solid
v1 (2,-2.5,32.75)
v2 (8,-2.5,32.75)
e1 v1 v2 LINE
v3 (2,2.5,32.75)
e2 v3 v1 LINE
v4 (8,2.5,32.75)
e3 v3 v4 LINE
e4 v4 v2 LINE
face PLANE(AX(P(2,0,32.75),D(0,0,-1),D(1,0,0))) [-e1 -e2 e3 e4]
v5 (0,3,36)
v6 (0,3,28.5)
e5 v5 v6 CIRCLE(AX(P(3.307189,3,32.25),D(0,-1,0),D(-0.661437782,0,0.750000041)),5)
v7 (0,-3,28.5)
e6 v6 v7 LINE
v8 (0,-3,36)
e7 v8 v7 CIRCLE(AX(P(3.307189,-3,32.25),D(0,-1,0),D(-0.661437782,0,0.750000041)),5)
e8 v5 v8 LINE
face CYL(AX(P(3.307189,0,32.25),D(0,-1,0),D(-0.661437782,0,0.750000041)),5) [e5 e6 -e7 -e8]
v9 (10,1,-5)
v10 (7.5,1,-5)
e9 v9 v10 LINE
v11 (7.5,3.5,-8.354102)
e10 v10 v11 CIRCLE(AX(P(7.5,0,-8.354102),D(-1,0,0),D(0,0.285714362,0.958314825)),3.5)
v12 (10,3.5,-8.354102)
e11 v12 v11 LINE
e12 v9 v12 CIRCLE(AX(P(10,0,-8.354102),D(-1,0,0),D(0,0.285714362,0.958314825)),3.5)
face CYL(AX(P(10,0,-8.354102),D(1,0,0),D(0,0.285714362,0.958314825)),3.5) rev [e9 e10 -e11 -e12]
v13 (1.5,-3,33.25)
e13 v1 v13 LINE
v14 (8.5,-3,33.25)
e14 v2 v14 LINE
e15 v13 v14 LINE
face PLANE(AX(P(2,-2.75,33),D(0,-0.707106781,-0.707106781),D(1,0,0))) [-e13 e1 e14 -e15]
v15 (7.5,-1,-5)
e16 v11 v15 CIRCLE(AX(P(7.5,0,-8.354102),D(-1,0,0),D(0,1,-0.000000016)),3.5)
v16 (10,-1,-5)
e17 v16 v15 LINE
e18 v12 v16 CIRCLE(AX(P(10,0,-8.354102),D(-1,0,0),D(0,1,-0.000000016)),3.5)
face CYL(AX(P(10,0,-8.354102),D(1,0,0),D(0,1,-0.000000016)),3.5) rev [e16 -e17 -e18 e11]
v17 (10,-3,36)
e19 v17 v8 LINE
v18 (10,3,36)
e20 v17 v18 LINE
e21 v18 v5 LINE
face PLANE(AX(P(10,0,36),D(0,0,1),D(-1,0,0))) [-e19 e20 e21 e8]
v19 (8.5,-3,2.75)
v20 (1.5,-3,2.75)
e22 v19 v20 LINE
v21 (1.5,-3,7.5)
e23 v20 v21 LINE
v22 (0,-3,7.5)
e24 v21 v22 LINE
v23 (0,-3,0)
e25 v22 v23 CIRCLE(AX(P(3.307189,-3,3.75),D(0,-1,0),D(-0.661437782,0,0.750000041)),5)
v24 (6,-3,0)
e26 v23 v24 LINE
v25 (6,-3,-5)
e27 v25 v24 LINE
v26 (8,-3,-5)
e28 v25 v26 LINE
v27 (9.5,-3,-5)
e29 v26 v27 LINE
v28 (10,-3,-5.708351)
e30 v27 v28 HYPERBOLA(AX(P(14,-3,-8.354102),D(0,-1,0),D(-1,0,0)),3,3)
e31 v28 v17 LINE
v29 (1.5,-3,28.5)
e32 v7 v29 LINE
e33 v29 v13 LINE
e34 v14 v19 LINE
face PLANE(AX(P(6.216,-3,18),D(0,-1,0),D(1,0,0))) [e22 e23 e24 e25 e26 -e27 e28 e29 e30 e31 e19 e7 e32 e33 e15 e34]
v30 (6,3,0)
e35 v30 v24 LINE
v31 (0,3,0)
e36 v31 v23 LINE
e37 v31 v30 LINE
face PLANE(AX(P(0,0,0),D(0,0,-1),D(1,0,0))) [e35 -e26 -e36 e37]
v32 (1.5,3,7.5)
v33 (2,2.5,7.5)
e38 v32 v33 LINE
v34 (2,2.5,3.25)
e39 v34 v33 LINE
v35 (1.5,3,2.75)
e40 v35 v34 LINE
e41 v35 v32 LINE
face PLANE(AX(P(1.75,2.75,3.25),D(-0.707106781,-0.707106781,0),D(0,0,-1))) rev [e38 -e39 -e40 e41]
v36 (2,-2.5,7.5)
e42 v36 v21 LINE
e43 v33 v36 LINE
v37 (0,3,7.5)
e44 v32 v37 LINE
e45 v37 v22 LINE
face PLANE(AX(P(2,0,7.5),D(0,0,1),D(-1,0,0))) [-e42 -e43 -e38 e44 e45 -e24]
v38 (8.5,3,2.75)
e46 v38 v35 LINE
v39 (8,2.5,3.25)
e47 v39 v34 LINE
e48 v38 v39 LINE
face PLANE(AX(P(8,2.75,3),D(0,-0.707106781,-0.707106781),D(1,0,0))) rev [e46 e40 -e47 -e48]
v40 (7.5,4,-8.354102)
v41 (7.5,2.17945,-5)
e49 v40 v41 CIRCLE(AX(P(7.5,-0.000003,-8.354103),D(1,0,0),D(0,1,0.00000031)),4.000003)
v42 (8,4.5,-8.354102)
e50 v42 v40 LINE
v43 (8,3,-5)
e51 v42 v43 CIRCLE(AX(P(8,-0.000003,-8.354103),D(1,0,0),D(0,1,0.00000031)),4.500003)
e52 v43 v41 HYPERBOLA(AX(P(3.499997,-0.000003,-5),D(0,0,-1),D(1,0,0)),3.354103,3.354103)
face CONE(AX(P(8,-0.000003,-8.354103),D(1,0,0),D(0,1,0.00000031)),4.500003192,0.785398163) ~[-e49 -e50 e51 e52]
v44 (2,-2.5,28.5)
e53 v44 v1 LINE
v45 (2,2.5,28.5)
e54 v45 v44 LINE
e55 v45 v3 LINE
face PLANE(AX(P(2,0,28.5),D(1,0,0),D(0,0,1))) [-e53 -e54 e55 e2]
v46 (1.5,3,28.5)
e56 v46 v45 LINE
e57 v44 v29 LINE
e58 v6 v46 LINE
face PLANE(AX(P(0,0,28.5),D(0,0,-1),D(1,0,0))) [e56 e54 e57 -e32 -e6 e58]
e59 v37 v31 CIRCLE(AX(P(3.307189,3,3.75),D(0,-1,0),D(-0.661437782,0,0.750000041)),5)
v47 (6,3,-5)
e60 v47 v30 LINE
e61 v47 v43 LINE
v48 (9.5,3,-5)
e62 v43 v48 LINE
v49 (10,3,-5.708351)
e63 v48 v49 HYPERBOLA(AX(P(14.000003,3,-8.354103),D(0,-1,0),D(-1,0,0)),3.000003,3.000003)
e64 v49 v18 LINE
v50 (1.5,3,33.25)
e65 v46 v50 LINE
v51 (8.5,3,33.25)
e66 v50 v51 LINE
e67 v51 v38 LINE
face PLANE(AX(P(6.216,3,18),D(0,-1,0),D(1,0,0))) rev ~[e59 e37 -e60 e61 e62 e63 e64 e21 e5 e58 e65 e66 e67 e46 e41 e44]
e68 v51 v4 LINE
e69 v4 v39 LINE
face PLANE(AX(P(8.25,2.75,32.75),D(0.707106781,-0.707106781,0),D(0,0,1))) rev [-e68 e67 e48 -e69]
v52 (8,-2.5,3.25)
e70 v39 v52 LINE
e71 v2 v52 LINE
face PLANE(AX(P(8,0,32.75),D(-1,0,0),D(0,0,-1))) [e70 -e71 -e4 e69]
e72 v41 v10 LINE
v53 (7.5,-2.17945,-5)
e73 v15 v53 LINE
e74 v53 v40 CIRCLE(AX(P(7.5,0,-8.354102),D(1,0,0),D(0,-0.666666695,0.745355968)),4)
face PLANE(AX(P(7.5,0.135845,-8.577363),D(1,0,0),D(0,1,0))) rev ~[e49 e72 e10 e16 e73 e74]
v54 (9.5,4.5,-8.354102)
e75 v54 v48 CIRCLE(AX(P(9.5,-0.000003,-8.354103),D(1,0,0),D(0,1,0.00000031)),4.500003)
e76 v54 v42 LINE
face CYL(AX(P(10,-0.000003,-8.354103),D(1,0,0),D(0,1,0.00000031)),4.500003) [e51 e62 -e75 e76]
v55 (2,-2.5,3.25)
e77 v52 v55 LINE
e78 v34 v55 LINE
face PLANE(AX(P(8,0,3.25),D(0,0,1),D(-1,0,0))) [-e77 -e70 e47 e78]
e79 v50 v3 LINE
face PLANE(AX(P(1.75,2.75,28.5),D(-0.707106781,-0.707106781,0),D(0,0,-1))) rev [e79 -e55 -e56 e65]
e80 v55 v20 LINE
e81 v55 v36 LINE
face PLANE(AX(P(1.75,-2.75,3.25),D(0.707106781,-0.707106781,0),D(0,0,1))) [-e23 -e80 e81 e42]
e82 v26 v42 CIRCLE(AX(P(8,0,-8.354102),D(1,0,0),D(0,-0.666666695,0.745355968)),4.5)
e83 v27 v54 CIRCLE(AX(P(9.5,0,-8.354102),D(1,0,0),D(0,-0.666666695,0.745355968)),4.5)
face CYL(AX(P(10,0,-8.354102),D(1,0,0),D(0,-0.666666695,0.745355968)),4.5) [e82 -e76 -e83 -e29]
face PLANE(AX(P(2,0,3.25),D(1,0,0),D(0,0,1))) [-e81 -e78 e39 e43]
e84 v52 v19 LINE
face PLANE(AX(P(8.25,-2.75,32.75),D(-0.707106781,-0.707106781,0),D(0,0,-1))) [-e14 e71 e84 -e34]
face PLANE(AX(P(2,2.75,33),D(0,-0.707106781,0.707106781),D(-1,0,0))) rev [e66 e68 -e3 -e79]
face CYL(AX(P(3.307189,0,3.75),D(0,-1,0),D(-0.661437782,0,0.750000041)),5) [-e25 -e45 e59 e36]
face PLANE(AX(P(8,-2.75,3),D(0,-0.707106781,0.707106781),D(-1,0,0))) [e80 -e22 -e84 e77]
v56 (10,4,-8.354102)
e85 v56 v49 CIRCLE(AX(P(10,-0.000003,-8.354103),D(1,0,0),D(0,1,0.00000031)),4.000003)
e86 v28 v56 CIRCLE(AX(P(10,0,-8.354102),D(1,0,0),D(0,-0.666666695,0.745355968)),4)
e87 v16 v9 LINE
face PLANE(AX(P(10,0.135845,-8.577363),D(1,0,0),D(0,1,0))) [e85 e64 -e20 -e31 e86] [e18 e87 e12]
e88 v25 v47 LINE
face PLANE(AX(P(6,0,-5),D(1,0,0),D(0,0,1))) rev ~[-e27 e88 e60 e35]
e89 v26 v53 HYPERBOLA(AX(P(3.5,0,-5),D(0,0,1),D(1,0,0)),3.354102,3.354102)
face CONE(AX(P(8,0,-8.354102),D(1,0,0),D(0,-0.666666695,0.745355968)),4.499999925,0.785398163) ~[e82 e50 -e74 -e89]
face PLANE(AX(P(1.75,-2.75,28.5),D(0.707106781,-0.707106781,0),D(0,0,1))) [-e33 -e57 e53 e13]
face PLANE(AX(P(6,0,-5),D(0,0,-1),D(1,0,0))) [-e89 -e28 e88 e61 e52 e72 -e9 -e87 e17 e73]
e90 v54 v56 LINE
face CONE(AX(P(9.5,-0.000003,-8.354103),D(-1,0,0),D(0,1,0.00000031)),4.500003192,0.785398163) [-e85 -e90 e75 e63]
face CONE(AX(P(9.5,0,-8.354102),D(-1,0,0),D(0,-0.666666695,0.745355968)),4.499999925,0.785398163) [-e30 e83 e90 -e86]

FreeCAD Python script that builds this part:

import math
import FreeCAD as App
import Part
import Sketcher
Q = App.Units.Quantity


def edges_at(feature, points):
    """Names of the edges that pass closest to the given points."""
    edges = feature.Shape.Edges
    near = lambda p: min(range(len(edges)), key=lambda i: edges[i].distToShape(Part.Vertex(*p))[0])
    return sorted({f"Edge{near(p) + 1}" for p in points})

doc = App.newDocument("Part")
params = doc.addObject("Spreadsheet::Sheet", "Params")
for row, (alias, value) in enumerate([
    ("sketch1_radius", "5 mm"),
    ("sketch1_width", "10 mm"),
    ("sketch1_width2", "2 mm"),
    ("sketch1_width3", "6 mm"),
    ("sketch1_height", "5 mm"),
    ("pad1_length", "6 mm"),
    ("sketch2_radius", "4.5 mm"),
    ("sketch2_radius2", "3.5 mm"),
    ("sketch2_width", "2 mm"),
    ("pad2_length", "2.5 mm"),
    ("chamfer_size", "0.5 mm"),
    ("chamfer2_size", "0.5 mm"),
    ("chamfer3_size", "0.5 mm"),
], start=1):
    params.set(f"A{row}", alias)
    params.set(f"B{row}", "=" + value)
    params.setAlias(f"B{row}", alias)

body = doc.addObject("PartDesign::Body", "Body")

sketch1 = body.newObject("Sketcher::SketchObject", "Sketch")
sketch1.AttachmentSupport = (doc.getObject("XZ_Plane"), [""])
sketch1.MapMode = "FlatFace"
sketch1.addGeometry([
    Part.LineSegment(App.Vector(10, 36, 0), App.Vector(0, 36, 0)),
    Part.ArcOfCircle(Part.Circle(App.Vector(3.3, 32.2, 0), App.Vector(0, 0, 1), 5), math.radians(131), math.radians(229)),
    Part.LineSegment(App.Vector(0, 28.5, 0), App.Vector(2, 28.5, 0)),
    Part.LineSegment(App.Vector(2, 28.5, 0), App.Vector(2, 32.8, 0)),
    Part.LineSegment(App.Vector(2, 32.8, 0), App.Vector(8, 32.8, 0)),
    Part.LineSegment(App.Vector(8, 32.8, 0), App.Vector(8, 3.2, 0)),
    Part.LineSegment(App.Vector(8, 3.2, 0), App.Vector(2, 3.2, 0)),
    Part.LineSegment(App.Vector(2, 3.2, 0), App.Vector(2, 7.5, 0)),
    Part.LineSegment(App.Vector(2, 7.5, 0), App.Vector(0, 7.5, 0)),
    Part.ArcOfCircle(Part.Circle(App.Vector(3.3, 3.8, 0), App.Vector(0, 0, 1), 5), math.radians(131), math.radians(229)),
    Part.LineSegment(App.Vector(0, 0, 0), App.Vector(6, 0, 0)),
    Part.LineSegment(App.Vector(6, 0, 0), App.Vector(6, -5, 0)),
    Part.LineSegment(App.Vector(6, -5, 0), App.Vector(10, -5, 0)),
    Part.LineSegment(App.Vector(10, -5, 0), App.Vector(10, 36, 0)),
], False)
sketch1.addConstraint([
    Sketcher.Constraint("Coincident", 0, 2, 1, 1),
    Sketcher.Constraint("Coincident", 1, 2, 2, 1),
    Sketcher.Constraint("Coincident", 2, 2, 3, 1),
    Sketcher.Constraint("Coincident", 3, 2, 4, 1),
    Sketcher.Constraint("Coincident", 4, 2, 5, 1),
    Sketcher.Constraint("Coincident", 5, 2, 6, 1),
    Sketcher.Constraint("Coincident", 6, 2, 7, 1),
    Sketcher.Constraint("Coincident", 7, 2, 8, 1),
    Sketcher.Constraint("Coincident", 8, 2, 9, 1),
    Sketcher.Constraint("Coincident", 9, 2, 10, 1),
    Sketcher.Constraint("Coincident", 10, 2, 11, 1),
    Sketcher.Constraint("Coincident", 11, 2, 12, 1),
    Sketcher.Constraint("Coincident", 12, 2, 13, 1),
    Sketcher.Constraint("Coincident", 13, 2, 0, 1),
    Sketcher.Constraint("Horizontal", 0),
    Sketcher.Constraint("Horizontal", 2),
    Sketcher.Constraint("Vertical", 3),
    Sketcher.Constraint("Horizontal", 4),
    Sketcher.Constraint("Vertical", 5),
    Sketcher.Constraint("Horizontal", 6),
    Sketcher.Constraint("Vertical", 7),
    Sketcher.Constraint("Horizontal", 8),
    Sketcher.Constraint("Horizontal", 10),
    Sketcher.Constraint("Vertical", 11),
    Sketcher.Constraint("Horizontal", 12),
    Sketcher.Constraint("Vertical", 13),
    Sketcher.Constraint("Coincident", 9, 2, -1, 1),
    Sketcher.Constraint("Equal", 1, 9),
    Sketcher.Constraint("PointOnObject", 0, 2, -2),
    Sketcher.Constraint("PointOnObject", 1, 2, -2),
    Sketcher.Constraint("PointOnObject", 8, 2, -2),
    Sketcher.Constraint("Vertical", 1, 3, 9, 3),
    Sketcher.Constraint("Vertical", 3, 2, 6, 2),
    Sketcher.Constraint("Equal", 6, 10),
    Sketcher.Constraint("Equal", 3, 7),
    Sketcher.Constraint("Radius", 1, Q("5 mm")),
    Sketcher.Constraint("DistanceX", 0, 2, 0, 1, Q("10 mm")),
    Sketcher.Constraint("DistanceX", 2, 1, 2, 2, Q("2 mm")),
    Sketcher.Constraint("DistanceX", 4, 1, 4, 2, Q("6 mm")),
    Sketcher.Constraint("DistanceY", 11, 2, 11, 1, Q("5 mm")),
    Sketcher.Constraint("DistanceY", 13, 1, 13, 2, Q("41 mm")),
    Sketcher.Constraint("DistanceY", 5, 2, 5, 1, Q("29.5 mm")),
    Sketcher.Constraint("DistanceY", 9, 3, 3, 2, Q("29 mm")),
])
sketch1.setExpression("Constraints[35]", "Params.sketch1_radius")
sketch1.setExpression("Constraints[36]", "Params.sketch1_width")
sketch1.setExpression("Constraints[37]", "Params.sketch1_width2")
sketch1.setExpression("Constraints[38]", "Params.sketch1_width3")
sketch1.setExpression("Constraints[39]", "Params.sketch1_height")
pad1 = body.newObject("PartDesign::Pad", "Pad")
pad1.Profile = sketch1
pad1.setExpression("Length", "Params.pad1_length")
pad1.Midplane = True

sketch2 = body.newObject("Sketcher::SketchObject", "Sketch001")
sketch2.AttachmentSupport = (doc.getObject("YZ_Plane"), [""])
sketch2.MapMode = "FlatFace"
sketch2.AttachmentOffset = App.Placement(App.Vector(0, 0, 10), App.Rotation())
sketch2.addGeometry([
    Part.ArcOfCircle(Part.Circle(App.Vector(0, -8.4, 0), App.Vector(0, 0, 1), 4.5), math.radians(132), math.radians(360)),
    Part.ArcOfCircle(Part.Circle(App.Vector(0, -8.4, 0), App.Vector(0, 0, 1), 4.5), math.radians(0), math.radians(48)),
    Part.LineSegment(App.Vector(3, -5, 0), App.Vector(1, -5, 0)),
    Part.ArcOfCircle(Part.Circle(App.Vector(0, -8.4, 0), App.Vector(0, 0, 1), 3.5), math.radians(0), math.radians(73)),
    Part.ArcOfCircle(Part.Circle(App.Vector(0, -8.4, 0), App.Vector(0, 0, 1), 3.5), math.radians(107), math.radians(360)),
    Part.LineSegment(App.Vector(-1, -5, 0), App.Vector(-3, -5, 0)),
], False)
sketch2.addConstraint([
    Sketcher.Constraint("Tangent", 0, 2, 1, 1),
    Sketcher.Constraint("Coincident", 1, 2, 2, 1),
    Sketcher.Constraint("Coincident", 2, 2, 3, 2),
    Sketcher.Constraint("Tangent", 3, 1, 4, 2),
    Sketcher.Constraint("Coincident", 4, 1, 5, 1),
    Sketcher.Constraint("Coincident", 5, 2, 0, 1),
    Sketcher.Constraint("Horizontal", 2),
    Sketcher.Constraint("Horizontal", 5),
    Sketcher.Constraint("Coincident", 3, 3, 0, 3),
    Sketcher.Constraint("Equal", 3, 4),
    Sketcher.Constraint("Symmetric", 2, 2, 4, 1, -2),
    Sketcher.Constraint("Horizontal", 4, 3, 0, 2),
    Sketcher.Constraint("Horizontal", 0, 2, 3, 1),
    Sketcher.Constraint("Equal", 2, 5),
    Sketcher.Constraint("Radius", 0, Q("4.5 mm")),
    Sketcher.Constraint("Radius", 3, Q("3.5 mm")),
    Sketcher.Constraint("DistanceX", 2, 2, 2, 1, Q("2 mm")),
    Sketcher.Constraint("DistanceY", 1, 2, -1, 1, Q("5 mm")),
])
sketch2.setExpression("Constraints[14]", "Params.sketch2_radius")
sketch2.setExpression("Constraints[15]", "Params.sketch2_radius2")
sketch2.setExpression("Constraints[16]", "Params.sketch2_width")
pad2 = body.newObject("PartDesign::Pad", "Pad001")
pad2.Profile = sketch2
pad2.setExpression("Length", "Params.pad2_length")
pad2.Reversed = True
doc.recompute()

chamfer = body.newObject("PartDesign::Chamfer", "Chamfer")
chamfer.Base = (pad2, edges_at(pad2, [(7.5, -1.837, -12.462)]))
chamfer.setExpression("Size", "Params.chamfer_size")
doc.recompute()

chamfer2 = body.newObject("PartDesign::Chamfer", "Chamfer001")
chamfer2.Base = (chamfer, edges_at(chamfer, [(10, -1.837, -12.462)]))
chamfer2.setExpression("Size", "Params.chamfer2_size")
doc.recompute()

chamfer3 = body.newObject("PartDesign::Chamfer", "Chamfer002")
chamfer3.Base = (chamfer2, edges_at(chamfer2, [
    (2, -3, 5.375),
    (5, -3, 3.25),
    (8, -3, 18),
    (2, -3, 30.625),
    (5, -3, 32.75),
    (2, 3, 5.375),
    (5, 3, 3.25),
    (8, 3, 18),
    (5, 3, 32.75),
    (2, 3, 30.625),
]))
chamfer3.setExpression("Size", "Params.chamfer3_size")

doc.recompute()
